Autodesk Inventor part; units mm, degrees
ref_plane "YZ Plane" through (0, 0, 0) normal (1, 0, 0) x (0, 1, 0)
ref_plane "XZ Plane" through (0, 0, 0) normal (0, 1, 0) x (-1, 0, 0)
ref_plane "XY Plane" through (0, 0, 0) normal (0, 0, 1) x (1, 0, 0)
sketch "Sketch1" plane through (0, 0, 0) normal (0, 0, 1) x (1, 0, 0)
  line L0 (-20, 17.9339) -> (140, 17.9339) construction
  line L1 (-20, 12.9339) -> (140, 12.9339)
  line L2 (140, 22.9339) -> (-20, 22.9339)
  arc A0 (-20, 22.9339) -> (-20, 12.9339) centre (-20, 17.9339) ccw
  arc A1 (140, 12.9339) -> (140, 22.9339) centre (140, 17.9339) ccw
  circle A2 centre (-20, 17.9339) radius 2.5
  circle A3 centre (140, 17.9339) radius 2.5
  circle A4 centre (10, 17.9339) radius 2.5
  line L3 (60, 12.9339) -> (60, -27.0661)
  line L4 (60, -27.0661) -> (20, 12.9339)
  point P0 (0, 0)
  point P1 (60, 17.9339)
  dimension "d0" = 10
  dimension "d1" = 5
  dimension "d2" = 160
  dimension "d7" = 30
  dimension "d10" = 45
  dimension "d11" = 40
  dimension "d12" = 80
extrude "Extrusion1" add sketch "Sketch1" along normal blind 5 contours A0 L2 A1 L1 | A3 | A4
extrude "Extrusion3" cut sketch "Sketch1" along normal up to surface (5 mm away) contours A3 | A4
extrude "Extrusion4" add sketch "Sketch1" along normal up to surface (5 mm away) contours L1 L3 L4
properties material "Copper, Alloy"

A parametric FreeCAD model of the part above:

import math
import FreeCAD as App
import Part
import Sketcher

V = App.Vector
Q = App.Units.Quantity

doc = App.newDocument("Part")
params = doc.addObject("Spreadsheet::Sheet", "Params")
for row, (alias, value) in enumerate([
    ("sketch1_diameter", "5 mm"),
    ("sketch1_radius", "5 mm"),
    ("sketch1_width", "160 mm"),
    ("pad1_length", "5 mm"),
    ("sketch2_diameter", "5 mm"),
    ("pocket1_length", "5 mm"),
    ("sketch3_width", "40 mm"),
    ("pad2_length", "5 mm"),
], start=1):
    params.set(f"A{row}", alias)
    params.set(f"B{row}", "=" + value)
    params.setAlias(f"B{row}", alias)

body = doc.addObject("PartDesign::Body", "Body")

# Sketch on XY plane
sketch1 = body.newObject("Sketcher::SketchObject", "Sketch")
sketch1.AttachmentSupport = (doc.getObject("XY_Plane"), [""])
sketch1.MapMode = "FlatFace"
sketch1.addGeometry([
    Part.ArcOfCircle(Part.Circle(V(-20, 17.9, 0), V(0, 0, 1), 5), math.radians(90), math.radians(270)),  # 0
    Part.LineSegment(V(-20, 12.9, 0), V(140, 12.9, 0)),  # 1
    Part.ArcOfCircle(Part.Circle(V(140, 17.9, 0), V(0, 0, 1), 5), math.radians(-90), math.radians(90)),  # 2
    Part.LineSegment(V(140, 22.9, 0), V(-20, 22.9, 0)),  # 3
    Part.Circle(V(-20, 17.9, 0), V(0, 0, 1), 2.5),  # 4
], False)
sketch1.addConstraint([
    Sketcher.Constraint("Tangent", 0, 2, 1, 1),
    Sketcher.Constraint("Tangent", 1, 2, 2, 1),
    Sketcher.Constraint("Tangent", 2, 2, 3, 1),
    Sketcher.Constraint("Tangent", 3, 2, 0, 1),
    Sketcher.Constraint("Horizontal", 1),
    Sketcher.Constraint("Horizontal", 3),
    Sketcher.Constraint("Coincident", 4, 3, 0, 3),
    Sketcher.Constraint("Diameter", 4, Q("5 mm")),
    Sketcher.Constraint("Radius", 0, Q("5 mm")),
    Sketcher.Constraint("DistanceX", 1, 1, 1, 2, Q("160 mm")),
    Sketcher.Constraint("DistanceX", 0, 3, -1, 1, Q("20 mm")),
    Sketcher.Constraint("DistanceY", -1, 1, 0, 3, Q("17.934 mm")),
])
sketch1.setExpression("Constraints[7]", "Params.sketch1_diameter")
sketch1.setExpression("Constraints[8]", "Params.sketch1_radius")
sketch1.setExpression("Constraints[9]", "Params.sketch1_width")
pad1 = body.newObject("PartDesign::Pad", "Pad")
pad1.Profile = sketch1
pad1.setExpression("Length", "Params.pad1_length")

# Sketch on XY plane
sketch2 = body.newObject("Sketcher::SketchObject", "Sketch001")
sketch2.AttachmentSupport = (doc.getObject("XY_Plane"), [""])
sketch2.MapMode = "FlatFace"
sketch2.addGeometry([
    Part.Circle(V(140, 17.9, 0), V(0, 0, 1), 2.5),
    Part.Circle(V(10, 17.9, 0), V(0, 0, 1), 2.5),
], False)
sketch2.addConstraint([
    Sketcher.Constraint("Equal", 0, 1),
    Sketcher.Constraint("Horizontal", 0, 3, 1, 3),
    Sketcher.Constraint("Diameter", 0, Q("5 mm")),
    Sketcher.Constraint("DistanceX", -1, 1, 1, 3, Q("10 mm")),
    Sketcher.Constraint("DistanceX", -1, 1, 0, 3, Q("140 mm")),
    Sketcher.Constraint("DistanceY", -1, 1, 0, 3, Q("17.934 mm")),
])
sketch2.setExpression("Constraints[2]", "Params.sketch2_diameter")
pocket1 = body.newObject("PartDesign::Pocket", "Pocket")
pocket1.Profile = sketch2
pocket1.setExpression("Length", "Params.pocket1_length")
pocket1.Reversed = True

# Sketch on XY plane
sketch3 = body.newObject("Sketcher::SketchObject", "Sketch002")
sketch3.AttachmentSupport = (doc.getObject("XY_Plane"), [""])
sketch3.MapMode = "FlatFace"
sketch3.addGeometry([
    Part.LineSegment(V(60, 13, 0), V(20, 13, 0)),
    Part.LineSegment(V(20, 13, 0), V(60, -27, 0)),
    Part.LineSegment(V(60, -27, 0), V(60, 13, 0)),
], False)
sketch3.addConstraint([
    Sketcher.Constraint("Coincident", 0, 2, 1, 1),
    Sketcher.Constraint("Coincident", 1, 2, 2, 1),
    Sketcher.Constraint("Coincident", 2, 2, 0, 1),
    Sketcher.Constraint("Horizontal", 0),
    Sketcher.Constraint("Vertical", 2),
    Sketcher.Constraint("Equal", 0, 2),
    Sketcher.Constraint("DistanceX", 0, 2, 0, 1, Q("40 mm")),
    Sketcher.Constraint("DistanceX", -1, 1, 0, 2, Q("20 mm")),
    Sketcher.Constraint("DistanceY", -1, 1, 0, 2, Q("12.934 mm")),
])
sketch3.setExpression("Constraints[6]", "Params.sketch3_width")
pad2 = body.newObject("PartDesign::Pad", "Pad001")
pad2.Profile = sketch3
pad2.setExpression("Length", "Params.pad2_length")

doc.recompute()
